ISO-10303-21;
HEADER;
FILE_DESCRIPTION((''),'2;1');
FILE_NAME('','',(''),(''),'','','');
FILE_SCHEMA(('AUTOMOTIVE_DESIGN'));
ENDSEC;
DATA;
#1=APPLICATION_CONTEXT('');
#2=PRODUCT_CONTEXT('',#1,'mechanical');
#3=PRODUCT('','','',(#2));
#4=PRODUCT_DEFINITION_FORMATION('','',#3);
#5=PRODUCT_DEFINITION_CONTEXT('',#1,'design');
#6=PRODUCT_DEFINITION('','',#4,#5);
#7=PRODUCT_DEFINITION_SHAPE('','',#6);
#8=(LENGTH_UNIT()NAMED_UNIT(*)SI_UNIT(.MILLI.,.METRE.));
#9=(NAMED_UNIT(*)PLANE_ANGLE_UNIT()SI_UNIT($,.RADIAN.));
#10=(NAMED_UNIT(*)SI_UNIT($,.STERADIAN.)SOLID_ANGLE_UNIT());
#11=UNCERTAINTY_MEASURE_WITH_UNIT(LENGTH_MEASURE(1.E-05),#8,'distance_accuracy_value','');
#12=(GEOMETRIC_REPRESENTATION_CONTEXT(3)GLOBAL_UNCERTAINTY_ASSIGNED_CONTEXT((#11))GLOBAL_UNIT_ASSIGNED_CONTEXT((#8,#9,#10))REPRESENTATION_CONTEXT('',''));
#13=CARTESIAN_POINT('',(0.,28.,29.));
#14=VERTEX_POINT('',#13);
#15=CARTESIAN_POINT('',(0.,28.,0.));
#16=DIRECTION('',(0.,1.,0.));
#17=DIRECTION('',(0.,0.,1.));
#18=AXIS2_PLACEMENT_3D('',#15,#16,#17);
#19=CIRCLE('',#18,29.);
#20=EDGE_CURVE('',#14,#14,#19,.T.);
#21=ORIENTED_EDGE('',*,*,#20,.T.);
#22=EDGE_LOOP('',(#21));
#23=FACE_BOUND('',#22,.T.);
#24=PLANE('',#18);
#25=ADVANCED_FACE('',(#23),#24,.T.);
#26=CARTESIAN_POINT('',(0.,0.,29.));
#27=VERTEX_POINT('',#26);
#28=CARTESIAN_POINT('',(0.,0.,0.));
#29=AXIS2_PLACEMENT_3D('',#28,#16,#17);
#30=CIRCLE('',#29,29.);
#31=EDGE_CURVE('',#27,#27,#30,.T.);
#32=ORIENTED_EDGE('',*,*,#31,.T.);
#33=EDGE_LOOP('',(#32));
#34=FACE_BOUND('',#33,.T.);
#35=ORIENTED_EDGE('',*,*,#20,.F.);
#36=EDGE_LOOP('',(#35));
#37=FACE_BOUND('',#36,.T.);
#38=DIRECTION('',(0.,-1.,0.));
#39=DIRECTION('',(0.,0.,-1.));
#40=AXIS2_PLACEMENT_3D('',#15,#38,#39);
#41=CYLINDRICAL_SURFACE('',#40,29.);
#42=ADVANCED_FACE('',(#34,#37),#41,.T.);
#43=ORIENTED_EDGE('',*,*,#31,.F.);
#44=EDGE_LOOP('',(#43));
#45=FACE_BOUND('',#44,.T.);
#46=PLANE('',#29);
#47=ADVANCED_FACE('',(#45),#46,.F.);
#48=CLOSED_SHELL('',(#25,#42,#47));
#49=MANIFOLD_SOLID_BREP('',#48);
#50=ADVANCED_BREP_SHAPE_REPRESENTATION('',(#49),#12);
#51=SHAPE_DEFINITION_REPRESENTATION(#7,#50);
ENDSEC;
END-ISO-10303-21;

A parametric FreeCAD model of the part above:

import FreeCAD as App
import Part
import Sketcher

V = App.Vector

doc = App.newDocument("Part")
body = doc.addObject("PartDesign::Body", "Body")

sketch1 = body.newObject("Sketcher::SketchObject", "Sketch")
sketch1.AttachmentSupport = (doc.getObject("XZ_Plane"), [""])
sketch1.MapMode = "FlatFace"
sketch1.addGeometry(Part.Circle(V(0, 0, 0), V(0, 0, 1), 29), False)
sketch1.addConstraint(Sketcher.Constraint("Coincident", 0, 3, -1, 1))
sketch1.addConstraint(Sketcher.Constraint("Diameter", 0, 58.0))
pad1 = body.newObject("PartDesign::Pad", "Pad")
pad1.Profile = sketch1
pad1.Length = 28
pad1.Reversed = True

doc.recompute()
